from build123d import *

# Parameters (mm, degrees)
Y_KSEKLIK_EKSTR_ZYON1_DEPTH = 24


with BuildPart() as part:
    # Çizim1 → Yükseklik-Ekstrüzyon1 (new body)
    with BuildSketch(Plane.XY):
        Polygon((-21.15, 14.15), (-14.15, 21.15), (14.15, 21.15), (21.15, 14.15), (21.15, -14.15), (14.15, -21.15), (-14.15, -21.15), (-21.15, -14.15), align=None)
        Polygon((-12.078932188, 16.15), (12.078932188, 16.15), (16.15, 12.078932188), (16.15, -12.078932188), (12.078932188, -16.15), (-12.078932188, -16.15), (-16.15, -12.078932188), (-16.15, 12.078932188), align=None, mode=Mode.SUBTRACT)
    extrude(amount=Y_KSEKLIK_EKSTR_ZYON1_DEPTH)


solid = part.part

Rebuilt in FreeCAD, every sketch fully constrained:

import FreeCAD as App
import Part
import Sketcher

V = App.Vector


def add_polygon(sketch, points):
    """Adds a closed chain of lines whose ends are joined by coincident constraints."""
    first, n = sketch.GeometryCount, len(points)
    for a, b in zip(points, points[1:] + points[:1]):
        sketch.addGeometry(Part.LineSegment(App.Vector(*a, 0), App.Vector(*b, 0)), False)
    for i in range(n):
        sketch.addConstraint(Sketcher.Constraint("Coincident", first + i, 2, first + (i + 1) % n, 1))

doc = App.newDocument("Part")
body = doc.addObject("PartDesign::Body", "Body")

# Sketch on XY plane
sketch1 = doc.addObject("Sketcher::SketchObject", "Sketch")
body.addObject(sketch1)
sketch1.AttachmentSupport = (doc.XY_Plane, [""])
sketch1.MapMode = "FlatFace"
add_polygon(sketch1, [(-14.15, 21.15), (-21.15, 14.15), (-21.15, -14.15), (-14.15, -21.15), (14.15, -21.15), (21.15, -14.15), (21.15, 14.15), (14.15, 21.15)])  # lines 0-7
add_polygon(sketch1, [(-12.078932, 16.15), (12.078932, 16.15), (16.15, 12.078932), (16.15, -12.078932), (12.078932, -16.15), (-12.078932, -16.15), (-16.15, -12.078932), (-16.15, 12.078932)])  # lines 8-15
sketch1.addConstraint([
    Sketcher.Constraint("Vertical", 1),
    Sketcher.Constraint("Horizontal", 3),
    Sketcher.Constraint("Vertical", 5),
    Sketcher.Constraint("Horizontal", 7),
    Sketcher.Constraint("Horizontal", 8),
    Sketcher.Constraint("Vertical", 10),
    Sketcher.Constraint("Horizontal", 12),
    Sketcher.Constraint("Vertical", 14),
    Sketcher.Constraint("Symmetric", 0, 2, 4, 2, -1, 1),
    Sketcher.Constraint("Symmetric", 2, 2, 6, 2, -1, 1),
    Sketcher.Constraint("Symmetric", 8, 2, 12, 2, -1, 1),
    Sketcher.Constraint("Symmetric", 9, 2, 13, 2, -1, 1),
    Sketcher.Constraint("Perpendicular", 0, 2),
    Sketcher.Constraint("Perpendicular", 2, 4),
    Sketcher.Constraint("Perpendicular", 4, 6),
    Sketcher.Constraint("Parallel", 6, 9),
    Sketcher.Constraint("Perpendicular", 9, 11),
    Sketcher.Constraint("Perpendicular", 13, 15),
    Sketcher.Constraint("Horizontal", 1, 2, 4, 2),
    Sketcher.Constraint("Horizontal", 10, 2, 13, 2),
    Sketcher.Constraint("Horizontal", 9, 2, 14, 2),
    Sketcher.Constraint("Vertical", 3, 2, 6, 2),
    Sketcher.Constraint("Equal", 7, 1),
    Sketcher.Constraint("Equal", 12, 10),
    Sketcher.Constraint("DistanceX", 3, 1, 3, 2, 28.3),
    Sketcher.Constraint("DistanceX", 1, 2, 2, 2, 7.0),
    Sketcher.Constraint("DistanceY", 8, 2, 6, 2, 5.0),
    Sketcher.Constraint("Distance", 9, 5.757359),
])
pad1 = doc.addObject("PartDesign::Pad", "Pad")
body.addObject(pad1)
pad1.Profile = sketch1
pad1.Length = 24

doc.recompute()
